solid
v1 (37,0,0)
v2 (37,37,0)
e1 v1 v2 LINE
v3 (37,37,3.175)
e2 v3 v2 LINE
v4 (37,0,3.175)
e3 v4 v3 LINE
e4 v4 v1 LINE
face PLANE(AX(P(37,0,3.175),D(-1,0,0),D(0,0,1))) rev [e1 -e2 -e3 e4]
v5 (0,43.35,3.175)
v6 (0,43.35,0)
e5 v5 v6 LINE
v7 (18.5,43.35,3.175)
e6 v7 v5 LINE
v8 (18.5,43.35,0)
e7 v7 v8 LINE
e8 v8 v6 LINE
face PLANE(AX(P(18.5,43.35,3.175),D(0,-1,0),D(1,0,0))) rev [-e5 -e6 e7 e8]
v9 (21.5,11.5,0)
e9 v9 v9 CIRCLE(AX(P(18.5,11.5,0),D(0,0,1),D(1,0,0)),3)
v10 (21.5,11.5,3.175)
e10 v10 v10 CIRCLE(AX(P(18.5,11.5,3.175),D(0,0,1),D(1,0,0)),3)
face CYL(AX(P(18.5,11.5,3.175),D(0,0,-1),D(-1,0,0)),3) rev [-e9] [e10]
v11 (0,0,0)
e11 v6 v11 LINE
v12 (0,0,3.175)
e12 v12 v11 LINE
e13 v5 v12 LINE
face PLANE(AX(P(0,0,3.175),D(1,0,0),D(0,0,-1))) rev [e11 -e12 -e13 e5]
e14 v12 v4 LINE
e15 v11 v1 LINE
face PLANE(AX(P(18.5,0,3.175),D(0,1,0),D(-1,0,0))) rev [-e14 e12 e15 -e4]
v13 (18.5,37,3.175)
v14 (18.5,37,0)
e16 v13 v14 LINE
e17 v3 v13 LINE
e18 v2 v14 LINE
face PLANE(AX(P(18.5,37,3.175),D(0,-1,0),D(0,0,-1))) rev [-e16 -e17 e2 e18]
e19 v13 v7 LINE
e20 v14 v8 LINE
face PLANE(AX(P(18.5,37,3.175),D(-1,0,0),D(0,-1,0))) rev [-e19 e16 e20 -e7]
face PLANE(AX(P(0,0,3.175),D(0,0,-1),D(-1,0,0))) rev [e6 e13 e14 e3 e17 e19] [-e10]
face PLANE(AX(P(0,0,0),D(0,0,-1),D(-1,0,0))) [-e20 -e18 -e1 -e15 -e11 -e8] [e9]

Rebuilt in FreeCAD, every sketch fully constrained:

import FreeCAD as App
import Part
import Sketcher
from FreeCAD import Vector

doc = App.newDocument("Part")
body = doc.addObject("PartDesign::Body", "Body")

sketch1 = body.newObject("Sketcher::SketchObject", "Sketch")
sketch1.AttachmentSupport = (doc.getObject("XY_Plane"), [""])
sketch1.MapMode = "FlatFace"
sketch1.addGeometry([
    Part.LineSegment(Vector(37, 0, 0), Vector(37, 37, 0)),
    Part.LineSegment(Vector(37, 37, 0), Vector(18.5, 37, 0)),
    Part.LineSegment(Vector(18.5, 37, 0), Vector(18.5, 43.35, 0)),
    Part.LineSegment(Vector(18.5, 43.35, 0), Vector(0, 43.35, 0)),
    Part.LineSegment(Vector(0, 43.35, 0), Vector(0, 0, 0)),
    Part.LineSegment(Vector(0, 0, 0), Vector(37, 0, 0)),
    Part.Circle(Vector(18.5, 11.5, 0), Vector(0, 0, 1), 3),
], False)
sketch1.addConstraint([
    Sketcher.Constraint("Coincident", 0, 2, 1, 1),
    Sketcher.Constraint("Coincident", 1, 2, 2, 1),
    Sketcher.Constraint("Coincident", 2, 2, 3, 1),
    Sketcher.Constraint("Coincident", 3, 2, 4, 1),
    Sketcher.Constraint("Coincident", 4, 2, 5, 1),
    Sketcher.Constraint("Coincident", 5, 2, 0, 1),
    Sketcher.Constraint("Vertical", 0),
    Sketcher.Constraint("Horizontal", 1),
    Sketcher.Constraint("Vertical", 2),
    Sketcher.Constraint("Horizontal", 3),
    Sketcher.Constraint("Vertical", 4),
    Sketcher.Constraint("Horizontal", 5),
    Sketcher.Constraint("Coincident", 4, 2, -1, 1),
    Sketcher.Constraint("Vertical", 6, 3, 1, 2),
    Sketcher.Constraint("Equal", 1, 3),
    Sketcher.Constraint("Equal", 5, 0),
    Sketcher.Constraint("Diameter", 6, 6.0),
    Sketcher.Constraint("DistanceX", 5, 1, 5, 2, 37.0),
    Sketcher.Constraint("DistanceY", 2, 1, 2, 2, 6.35),
    Sketcher.Constraint("DistanceY", -1, 1, 6, 3, 11.5),
])
pad1 = body.newObject("PartDesign::Pad", "Pad")
pad1.Profile = sketch1
pad1.Length = 3.175

doc.recompute()
